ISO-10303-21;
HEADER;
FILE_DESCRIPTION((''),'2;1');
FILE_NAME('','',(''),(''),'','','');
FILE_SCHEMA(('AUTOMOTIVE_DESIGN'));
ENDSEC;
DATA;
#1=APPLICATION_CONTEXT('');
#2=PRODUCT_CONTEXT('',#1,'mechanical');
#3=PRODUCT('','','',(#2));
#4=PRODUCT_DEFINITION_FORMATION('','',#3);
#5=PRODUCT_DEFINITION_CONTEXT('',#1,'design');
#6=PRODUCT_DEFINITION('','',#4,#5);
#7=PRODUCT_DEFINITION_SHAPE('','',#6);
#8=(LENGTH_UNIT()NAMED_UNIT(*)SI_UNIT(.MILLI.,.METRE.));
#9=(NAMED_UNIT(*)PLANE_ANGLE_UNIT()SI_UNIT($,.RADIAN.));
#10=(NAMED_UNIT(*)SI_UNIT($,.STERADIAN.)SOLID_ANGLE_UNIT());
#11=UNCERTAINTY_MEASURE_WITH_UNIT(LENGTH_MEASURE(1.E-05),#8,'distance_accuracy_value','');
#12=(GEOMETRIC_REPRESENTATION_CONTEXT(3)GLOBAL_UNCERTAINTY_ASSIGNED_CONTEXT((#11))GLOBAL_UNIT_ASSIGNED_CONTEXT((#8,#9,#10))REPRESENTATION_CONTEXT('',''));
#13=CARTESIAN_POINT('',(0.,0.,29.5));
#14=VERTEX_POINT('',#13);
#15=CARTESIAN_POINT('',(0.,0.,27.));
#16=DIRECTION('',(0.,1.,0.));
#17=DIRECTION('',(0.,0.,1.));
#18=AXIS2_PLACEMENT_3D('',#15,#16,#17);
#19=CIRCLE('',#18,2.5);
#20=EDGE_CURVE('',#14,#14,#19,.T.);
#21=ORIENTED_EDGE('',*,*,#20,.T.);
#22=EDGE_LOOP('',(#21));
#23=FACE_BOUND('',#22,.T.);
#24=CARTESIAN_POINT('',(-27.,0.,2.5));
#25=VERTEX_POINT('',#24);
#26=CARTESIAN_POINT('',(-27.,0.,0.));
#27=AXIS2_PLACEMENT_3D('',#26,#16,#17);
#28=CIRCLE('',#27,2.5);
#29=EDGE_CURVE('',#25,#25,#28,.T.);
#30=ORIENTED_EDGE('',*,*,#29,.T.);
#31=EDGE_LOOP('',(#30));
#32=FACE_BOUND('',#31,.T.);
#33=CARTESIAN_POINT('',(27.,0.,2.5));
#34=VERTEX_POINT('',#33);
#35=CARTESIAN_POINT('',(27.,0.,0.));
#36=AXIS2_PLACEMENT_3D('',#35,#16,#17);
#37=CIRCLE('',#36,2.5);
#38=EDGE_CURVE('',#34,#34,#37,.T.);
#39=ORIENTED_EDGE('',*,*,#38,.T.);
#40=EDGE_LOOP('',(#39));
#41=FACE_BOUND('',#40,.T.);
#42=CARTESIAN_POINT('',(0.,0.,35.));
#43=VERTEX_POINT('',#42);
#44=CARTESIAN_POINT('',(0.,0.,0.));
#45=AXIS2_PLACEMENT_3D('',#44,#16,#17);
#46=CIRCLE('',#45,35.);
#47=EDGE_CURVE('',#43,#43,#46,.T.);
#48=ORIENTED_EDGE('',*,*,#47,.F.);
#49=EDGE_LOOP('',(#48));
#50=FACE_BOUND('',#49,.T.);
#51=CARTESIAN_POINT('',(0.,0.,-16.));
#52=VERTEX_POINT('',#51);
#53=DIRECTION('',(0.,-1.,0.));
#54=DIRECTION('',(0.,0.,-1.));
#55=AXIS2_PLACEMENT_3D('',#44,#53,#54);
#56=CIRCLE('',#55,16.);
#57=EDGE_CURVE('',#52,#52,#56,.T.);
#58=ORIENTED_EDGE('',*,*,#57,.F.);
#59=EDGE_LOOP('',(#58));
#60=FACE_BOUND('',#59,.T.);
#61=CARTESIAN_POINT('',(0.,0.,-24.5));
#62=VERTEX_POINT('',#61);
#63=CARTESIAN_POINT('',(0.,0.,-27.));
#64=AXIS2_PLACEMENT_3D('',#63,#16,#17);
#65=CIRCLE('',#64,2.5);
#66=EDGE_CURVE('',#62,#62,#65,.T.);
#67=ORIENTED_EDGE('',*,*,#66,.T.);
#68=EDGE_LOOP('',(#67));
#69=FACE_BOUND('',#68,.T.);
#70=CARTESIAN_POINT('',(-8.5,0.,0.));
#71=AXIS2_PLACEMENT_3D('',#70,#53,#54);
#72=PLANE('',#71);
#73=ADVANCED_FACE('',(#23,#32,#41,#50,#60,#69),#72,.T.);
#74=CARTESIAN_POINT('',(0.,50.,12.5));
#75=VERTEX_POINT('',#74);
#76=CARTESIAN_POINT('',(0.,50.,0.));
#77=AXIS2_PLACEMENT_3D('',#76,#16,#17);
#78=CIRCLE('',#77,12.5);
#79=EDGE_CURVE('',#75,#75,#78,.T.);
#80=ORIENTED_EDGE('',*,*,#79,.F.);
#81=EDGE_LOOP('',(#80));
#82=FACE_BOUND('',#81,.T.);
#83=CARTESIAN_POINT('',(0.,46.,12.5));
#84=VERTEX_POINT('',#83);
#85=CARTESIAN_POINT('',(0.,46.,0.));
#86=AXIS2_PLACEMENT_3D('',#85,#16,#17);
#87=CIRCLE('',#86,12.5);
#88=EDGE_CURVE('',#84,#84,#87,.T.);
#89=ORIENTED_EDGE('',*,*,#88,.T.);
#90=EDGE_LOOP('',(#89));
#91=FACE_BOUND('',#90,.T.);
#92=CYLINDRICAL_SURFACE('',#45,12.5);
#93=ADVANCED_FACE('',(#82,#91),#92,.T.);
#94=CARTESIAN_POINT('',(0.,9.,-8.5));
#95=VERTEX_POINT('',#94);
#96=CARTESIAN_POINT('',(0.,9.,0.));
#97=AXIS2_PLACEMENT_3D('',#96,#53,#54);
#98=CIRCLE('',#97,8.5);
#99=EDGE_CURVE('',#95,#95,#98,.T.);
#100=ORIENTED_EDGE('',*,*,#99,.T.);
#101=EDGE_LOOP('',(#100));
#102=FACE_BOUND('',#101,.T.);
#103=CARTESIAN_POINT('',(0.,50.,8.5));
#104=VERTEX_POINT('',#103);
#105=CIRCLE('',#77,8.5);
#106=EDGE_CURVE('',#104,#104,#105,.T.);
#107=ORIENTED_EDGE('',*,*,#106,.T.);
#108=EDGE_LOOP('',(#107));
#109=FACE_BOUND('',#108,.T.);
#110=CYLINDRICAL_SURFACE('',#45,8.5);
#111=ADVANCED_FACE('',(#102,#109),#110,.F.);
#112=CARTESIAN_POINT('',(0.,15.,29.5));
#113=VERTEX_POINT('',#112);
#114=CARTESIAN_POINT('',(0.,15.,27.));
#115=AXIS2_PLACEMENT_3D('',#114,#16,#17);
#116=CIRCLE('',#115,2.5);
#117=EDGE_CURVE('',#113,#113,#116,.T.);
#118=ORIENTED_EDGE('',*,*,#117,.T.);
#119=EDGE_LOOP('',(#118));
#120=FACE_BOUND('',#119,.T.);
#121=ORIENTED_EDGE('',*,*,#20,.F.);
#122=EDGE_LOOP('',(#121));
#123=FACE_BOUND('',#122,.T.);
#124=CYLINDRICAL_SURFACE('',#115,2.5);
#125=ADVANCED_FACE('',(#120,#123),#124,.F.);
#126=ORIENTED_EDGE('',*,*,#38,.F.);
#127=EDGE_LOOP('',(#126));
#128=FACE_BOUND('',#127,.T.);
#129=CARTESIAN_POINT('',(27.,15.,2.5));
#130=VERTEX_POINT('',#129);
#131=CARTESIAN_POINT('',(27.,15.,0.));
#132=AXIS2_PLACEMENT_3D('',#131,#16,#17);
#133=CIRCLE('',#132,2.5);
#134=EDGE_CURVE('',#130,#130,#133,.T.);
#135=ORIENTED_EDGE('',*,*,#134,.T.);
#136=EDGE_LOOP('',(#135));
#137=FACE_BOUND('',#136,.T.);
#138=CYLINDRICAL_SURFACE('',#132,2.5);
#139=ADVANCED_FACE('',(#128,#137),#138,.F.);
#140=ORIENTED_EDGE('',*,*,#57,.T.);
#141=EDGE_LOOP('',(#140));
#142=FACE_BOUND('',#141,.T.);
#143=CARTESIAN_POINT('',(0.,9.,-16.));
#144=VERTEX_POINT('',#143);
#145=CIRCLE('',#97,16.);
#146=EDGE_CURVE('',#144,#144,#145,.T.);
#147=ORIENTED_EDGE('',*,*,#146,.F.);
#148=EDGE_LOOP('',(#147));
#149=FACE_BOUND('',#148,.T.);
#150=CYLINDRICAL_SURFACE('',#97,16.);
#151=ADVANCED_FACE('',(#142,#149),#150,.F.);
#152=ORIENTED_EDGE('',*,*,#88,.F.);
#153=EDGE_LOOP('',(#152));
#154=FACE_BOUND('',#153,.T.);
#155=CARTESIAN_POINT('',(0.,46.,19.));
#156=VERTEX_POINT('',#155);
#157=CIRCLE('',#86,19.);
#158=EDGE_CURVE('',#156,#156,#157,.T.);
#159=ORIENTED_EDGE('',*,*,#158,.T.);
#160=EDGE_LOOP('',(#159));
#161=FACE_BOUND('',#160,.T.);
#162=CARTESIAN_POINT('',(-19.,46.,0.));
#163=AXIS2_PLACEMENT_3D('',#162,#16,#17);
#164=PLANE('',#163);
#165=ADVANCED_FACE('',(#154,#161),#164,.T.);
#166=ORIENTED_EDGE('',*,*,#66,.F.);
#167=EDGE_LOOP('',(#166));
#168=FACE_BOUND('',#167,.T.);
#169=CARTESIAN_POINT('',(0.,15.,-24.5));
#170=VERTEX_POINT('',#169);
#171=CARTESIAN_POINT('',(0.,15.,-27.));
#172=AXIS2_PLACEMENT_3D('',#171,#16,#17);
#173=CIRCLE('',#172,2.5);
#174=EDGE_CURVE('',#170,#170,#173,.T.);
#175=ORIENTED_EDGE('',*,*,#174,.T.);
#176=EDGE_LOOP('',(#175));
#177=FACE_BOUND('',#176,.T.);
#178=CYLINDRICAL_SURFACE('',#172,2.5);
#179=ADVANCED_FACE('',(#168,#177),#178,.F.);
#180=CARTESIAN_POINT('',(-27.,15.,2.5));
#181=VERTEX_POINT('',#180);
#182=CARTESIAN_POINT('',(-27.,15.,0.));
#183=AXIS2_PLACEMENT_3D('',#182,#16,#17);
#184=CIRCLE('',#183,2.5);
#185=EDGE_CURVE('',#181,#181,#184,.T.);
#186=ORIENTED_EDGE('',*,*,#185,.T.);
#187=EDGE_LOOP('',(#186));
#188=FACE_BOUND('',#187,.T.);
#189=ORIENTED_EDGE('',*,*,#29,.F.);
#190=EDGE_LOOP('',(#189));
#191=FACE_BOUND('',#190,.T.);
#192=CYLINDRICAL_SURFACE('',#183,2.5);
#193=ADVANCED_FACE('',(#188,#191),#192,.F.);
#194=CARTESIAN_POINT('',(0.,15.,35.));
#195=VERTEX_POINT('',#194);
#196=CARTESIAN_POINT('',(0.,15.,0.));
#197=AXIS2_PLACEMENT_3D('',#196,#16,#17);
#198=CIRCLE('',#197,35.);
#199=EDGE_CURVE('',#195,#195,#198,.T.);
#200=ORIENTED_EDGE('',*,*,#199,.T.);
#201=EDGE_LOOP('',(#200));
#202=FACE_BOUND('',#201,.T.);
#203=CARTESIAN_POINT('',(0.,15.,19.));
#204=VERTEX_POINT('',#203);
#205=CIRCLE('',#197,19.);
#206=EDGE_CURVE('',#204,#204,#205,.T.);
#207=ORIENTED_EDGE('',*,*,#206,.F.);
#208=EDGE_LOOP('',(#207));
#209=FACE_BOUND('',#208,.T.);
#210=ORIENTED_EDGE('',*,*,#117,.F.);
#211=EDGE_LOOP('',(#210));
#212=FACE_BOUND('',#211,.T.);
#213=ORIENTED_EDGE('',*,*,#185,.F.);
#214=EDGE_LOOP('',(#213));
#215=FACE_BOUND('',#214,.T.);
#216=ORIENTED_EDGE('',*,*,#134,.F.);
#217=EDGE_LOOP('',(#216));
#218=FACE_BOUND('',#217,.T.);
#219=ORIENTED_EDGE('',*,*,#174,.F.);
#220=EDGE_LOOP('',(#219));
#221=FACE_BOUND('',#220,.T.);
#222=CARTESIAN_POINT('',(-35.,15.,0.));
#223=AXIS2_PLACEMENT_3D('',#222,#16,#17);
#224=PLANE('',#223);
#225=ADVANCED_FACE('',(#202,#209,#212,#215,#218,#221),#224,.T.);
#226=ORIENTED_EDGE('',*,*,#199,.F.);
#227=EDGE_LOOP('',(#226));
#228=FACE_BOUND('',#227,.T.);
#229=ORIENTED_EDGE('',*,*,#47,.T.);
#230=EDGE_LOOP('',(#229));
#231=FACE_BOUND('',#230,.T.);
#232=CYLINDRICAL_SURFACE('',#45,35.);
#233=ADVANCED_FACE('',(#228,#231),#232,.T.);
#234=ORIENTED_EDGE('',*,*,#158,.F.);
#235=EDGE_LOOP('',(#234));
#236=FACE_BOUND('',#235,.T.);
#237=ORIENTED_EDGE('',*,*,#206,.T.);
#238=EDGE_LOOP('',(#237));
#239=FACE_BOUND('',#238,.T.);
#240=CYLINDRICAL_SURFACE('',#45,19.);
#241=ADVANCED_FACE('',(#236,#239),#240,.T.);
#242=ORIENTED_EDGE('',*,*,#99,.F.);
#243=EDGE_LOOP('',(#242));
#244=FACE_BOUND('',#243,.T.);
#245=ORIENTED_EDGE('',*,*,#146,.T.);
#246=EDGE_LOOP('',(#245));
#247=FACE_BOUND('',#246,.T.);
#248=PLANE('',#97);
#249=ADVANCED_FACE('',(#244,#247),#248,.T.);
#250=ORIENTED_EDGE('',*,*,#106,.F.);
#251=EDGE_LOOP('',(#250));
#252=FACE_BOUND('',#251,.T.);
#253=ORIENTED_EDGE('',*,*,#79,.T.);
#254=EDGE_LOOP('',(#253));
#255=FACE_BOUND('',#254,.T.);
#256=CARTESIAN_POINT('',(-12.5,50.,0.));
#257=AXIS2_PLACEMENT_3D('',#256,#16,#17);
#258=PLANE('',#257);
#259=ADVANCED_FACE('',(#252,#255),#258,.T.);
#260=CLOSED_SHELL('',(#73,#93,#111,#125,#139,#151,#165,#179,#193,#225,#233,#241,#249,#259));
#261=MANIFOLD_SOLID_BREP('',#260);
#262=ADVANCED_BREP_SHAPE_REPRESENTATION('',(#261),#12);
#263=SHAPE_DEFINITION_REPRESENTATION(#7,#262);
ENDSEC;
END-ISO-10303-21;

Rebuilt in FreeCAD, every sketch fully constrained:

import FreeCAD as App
import Part
import Sketcher
from FreeCAD import Vector
Q = App.Units.Quantity

doc = App.newDocument("Part")
body = doc.addObject("PartDesign::Body", "Body")

# Sketch on XY plane
sketch1 = body.newObject("Sketcher::SketchObject", "Sketch")
sketch1.AttachmentSupport = (doc.getObject("XY_Plane"), [""])
sketch1.MapMode = "FlatFace"
sketch1.addGeometry([
    Part.LineSegment(Vector(-35, 0, 0), Vector(-8.5, 0, 0)),  # 0
    Part.LineSegment(Vector(-8.5, 0, 0), Vector(-8.5, 50, 0)),  # 1
    Part.LineSegment(Vector(-8.5, 50, 0), Vector(-12.5, 50, 0)),  # 2
    Part.LineSegment(Vector(-12.5, 50, 0), Vector(-12.5, 46, 0)),  # 3
    Part.LineSegment(Vector(-12.5, 46, 0), Vector(-19, 46, 0)),  # 4
    Part.LineSegment(Vector(-19, 46, 0), Vector(-19, 15, 0)),  # 5
    Part.LineSegment(Vector(-19, 15, 0), Vector(-35, 15, 0)),  # 6
    Part.LineSegment(Vector(-35, 15, 0), Vector(-35, 0, 0)),  # 7
], False)
sketch1.addConstraint([
    Sketcher.Constraint("Coincident", 0, 2, 1, 1),
    Sketcher.Constraint("Coincident", 1, 2, 2, 1),
    Sketcher.Constraint("Coincident", 2, 2, 3, 1),
    Sketcher.Constraint("Coincident", 3, 2, 4, 1),
    Sketcher.Constraint("Coincident", 4, 2, 5, 1),
    Sketcher.Constraint("Coincident", 5, 2, 6, 1),
    Sketcher.Constraint("Coincident", 6, 2, 7, 1),
    Sketcher.Constraint("Coincident", 7, 2, 0, 1),
    Sketcher.Constraint("Horizontal", 0),
    Sketcher.Constraint("Vertical", 1),
    Sketcher.Constraint("Horizontal", 2),
    Sketcher.Constraint("Vertical", 3),
    Sketcher.Constraint("Horizontal", 4),
    Sketcher.Constraint("Vertical", 5),
    Sketcher.Constraint("Horizontal", 6),
    Sketcher.Constraint("Vertical", 7),
    Sketcher.Constraint("PointOnObject", 0, 2, -1),
    Sketcher.Constraint("Equal", 2, 3),
    Sketcher.Constraint("DistanceX", 2, 2, 2, 1, Q("4 mm")),
    Sketcher.Constraint("DistanceX", 6, 2, 6, 1, Q("16 mm")),
    Sketcher.Constraint("DistanceY", 1, 1, 1, 2, Q("50 mm")),
    Sketcher.Constraint("DistanceY", 5, 2, 5, 1, Q("31 mm")),
    Sketcher.Constraint("DistanceX", 0, 1, 0, 2, Q("26.5 mm")),
    Sketcher.Constraint("DistanceX", 4, 2, -1, 1, Q("19 mm")),
])
revolution = body.newObject("PartDesign::Revolution", "Revolution")
revolution.Profile = sketch1
revolution.ReferenceAxis = (sketch1, ["V_Axis"])
revolution.Angle = 360

# Sketch on XZ plane
sketch2 = body.newObject("Sketcher::SketchObject", "Sketch001")
sketch2.AttachmentSupport = (doc.getObject("XZ_Plane"), [""])
sketch2.MapMode = "FlatFace"
sketch2.AttachmentOffset = App.Placement(Vector(0, 0, -15), App.Rotation())
sketch2.addGeometry([
    Part.Circle(Vector(-27, 0, 0), Vector(0, 0, 1), 2.5),
    Part.Circle(Vector(0, -27, 0), Vector(0, 0, 1), 2.5),
    Part.Circle(Vector(27, 0, 0), Vector(0, 0, 1), 2.5),
    Part.Circle(Vector(0, 27, 0), Vector(0, 0, 1), 2.5),
], False)
sketch2.addConstraint([
    Sketcher.Constraint("Equal", 0, 1),
    Sketcher.Constraint("Equal", 1, 2),
    Sketcher.Constraint("Equal", 2, 3),
    Sketcher.Constraint("Symmetric", 0, 3, 2, 3, -1, 1),
    Sketcher.Constraint("Symmetric", 1, 3, 3, 3, -1, 1),
    Sketcher.Constraint("PointOnObject", 0, 3, -1),
    Sketcher.Constraint("PointOnObject", 1, 3, -2),
    Sketcher.Constraint("Diameter", 0, Q("5 mm")),
    Sketcher.Constraint("DistanceX", 0, 3, -1, 1, Q("27 mm")),
    Sketcher.Constraint("DistanceY", 1, 3, -1, 1, Q("27 mm")),
])
doc.recompute()
hole = body.newObject("PartDesign::Hole", "Hole")
hole.Profile = sketch2
hole.ThreadType = "None"
hole.Diameter = 5
hole.DepthType = "ThroughAll"
hole.Reversed = True

# Sketch on XZ plane
sketch3 = body.newObject("Sketcher::SketchObject", "Sketch002")
sketch3.AttachmentSupport = (doc.getObject("XZ_Plane"), [""])
sketch3.MapMode = "FlatFace"
sketch3.addGeometry(Part.Circle(Vector(0, 0, 0), Vector(0, 0, 1), 16), False)
sketch3.addConstraint([
    Sketcher.Constraint("Coincident", 0, 3, -1, 1),
    Sketcher.Constraint("Diameter", 0, Q("32 mm")),
])
pocket1 = body.newObject("PartDesign::Pocket", "Pocket")
pocket1.Profile = sketch3
pocket1.Length = 9

doc.recompute()
